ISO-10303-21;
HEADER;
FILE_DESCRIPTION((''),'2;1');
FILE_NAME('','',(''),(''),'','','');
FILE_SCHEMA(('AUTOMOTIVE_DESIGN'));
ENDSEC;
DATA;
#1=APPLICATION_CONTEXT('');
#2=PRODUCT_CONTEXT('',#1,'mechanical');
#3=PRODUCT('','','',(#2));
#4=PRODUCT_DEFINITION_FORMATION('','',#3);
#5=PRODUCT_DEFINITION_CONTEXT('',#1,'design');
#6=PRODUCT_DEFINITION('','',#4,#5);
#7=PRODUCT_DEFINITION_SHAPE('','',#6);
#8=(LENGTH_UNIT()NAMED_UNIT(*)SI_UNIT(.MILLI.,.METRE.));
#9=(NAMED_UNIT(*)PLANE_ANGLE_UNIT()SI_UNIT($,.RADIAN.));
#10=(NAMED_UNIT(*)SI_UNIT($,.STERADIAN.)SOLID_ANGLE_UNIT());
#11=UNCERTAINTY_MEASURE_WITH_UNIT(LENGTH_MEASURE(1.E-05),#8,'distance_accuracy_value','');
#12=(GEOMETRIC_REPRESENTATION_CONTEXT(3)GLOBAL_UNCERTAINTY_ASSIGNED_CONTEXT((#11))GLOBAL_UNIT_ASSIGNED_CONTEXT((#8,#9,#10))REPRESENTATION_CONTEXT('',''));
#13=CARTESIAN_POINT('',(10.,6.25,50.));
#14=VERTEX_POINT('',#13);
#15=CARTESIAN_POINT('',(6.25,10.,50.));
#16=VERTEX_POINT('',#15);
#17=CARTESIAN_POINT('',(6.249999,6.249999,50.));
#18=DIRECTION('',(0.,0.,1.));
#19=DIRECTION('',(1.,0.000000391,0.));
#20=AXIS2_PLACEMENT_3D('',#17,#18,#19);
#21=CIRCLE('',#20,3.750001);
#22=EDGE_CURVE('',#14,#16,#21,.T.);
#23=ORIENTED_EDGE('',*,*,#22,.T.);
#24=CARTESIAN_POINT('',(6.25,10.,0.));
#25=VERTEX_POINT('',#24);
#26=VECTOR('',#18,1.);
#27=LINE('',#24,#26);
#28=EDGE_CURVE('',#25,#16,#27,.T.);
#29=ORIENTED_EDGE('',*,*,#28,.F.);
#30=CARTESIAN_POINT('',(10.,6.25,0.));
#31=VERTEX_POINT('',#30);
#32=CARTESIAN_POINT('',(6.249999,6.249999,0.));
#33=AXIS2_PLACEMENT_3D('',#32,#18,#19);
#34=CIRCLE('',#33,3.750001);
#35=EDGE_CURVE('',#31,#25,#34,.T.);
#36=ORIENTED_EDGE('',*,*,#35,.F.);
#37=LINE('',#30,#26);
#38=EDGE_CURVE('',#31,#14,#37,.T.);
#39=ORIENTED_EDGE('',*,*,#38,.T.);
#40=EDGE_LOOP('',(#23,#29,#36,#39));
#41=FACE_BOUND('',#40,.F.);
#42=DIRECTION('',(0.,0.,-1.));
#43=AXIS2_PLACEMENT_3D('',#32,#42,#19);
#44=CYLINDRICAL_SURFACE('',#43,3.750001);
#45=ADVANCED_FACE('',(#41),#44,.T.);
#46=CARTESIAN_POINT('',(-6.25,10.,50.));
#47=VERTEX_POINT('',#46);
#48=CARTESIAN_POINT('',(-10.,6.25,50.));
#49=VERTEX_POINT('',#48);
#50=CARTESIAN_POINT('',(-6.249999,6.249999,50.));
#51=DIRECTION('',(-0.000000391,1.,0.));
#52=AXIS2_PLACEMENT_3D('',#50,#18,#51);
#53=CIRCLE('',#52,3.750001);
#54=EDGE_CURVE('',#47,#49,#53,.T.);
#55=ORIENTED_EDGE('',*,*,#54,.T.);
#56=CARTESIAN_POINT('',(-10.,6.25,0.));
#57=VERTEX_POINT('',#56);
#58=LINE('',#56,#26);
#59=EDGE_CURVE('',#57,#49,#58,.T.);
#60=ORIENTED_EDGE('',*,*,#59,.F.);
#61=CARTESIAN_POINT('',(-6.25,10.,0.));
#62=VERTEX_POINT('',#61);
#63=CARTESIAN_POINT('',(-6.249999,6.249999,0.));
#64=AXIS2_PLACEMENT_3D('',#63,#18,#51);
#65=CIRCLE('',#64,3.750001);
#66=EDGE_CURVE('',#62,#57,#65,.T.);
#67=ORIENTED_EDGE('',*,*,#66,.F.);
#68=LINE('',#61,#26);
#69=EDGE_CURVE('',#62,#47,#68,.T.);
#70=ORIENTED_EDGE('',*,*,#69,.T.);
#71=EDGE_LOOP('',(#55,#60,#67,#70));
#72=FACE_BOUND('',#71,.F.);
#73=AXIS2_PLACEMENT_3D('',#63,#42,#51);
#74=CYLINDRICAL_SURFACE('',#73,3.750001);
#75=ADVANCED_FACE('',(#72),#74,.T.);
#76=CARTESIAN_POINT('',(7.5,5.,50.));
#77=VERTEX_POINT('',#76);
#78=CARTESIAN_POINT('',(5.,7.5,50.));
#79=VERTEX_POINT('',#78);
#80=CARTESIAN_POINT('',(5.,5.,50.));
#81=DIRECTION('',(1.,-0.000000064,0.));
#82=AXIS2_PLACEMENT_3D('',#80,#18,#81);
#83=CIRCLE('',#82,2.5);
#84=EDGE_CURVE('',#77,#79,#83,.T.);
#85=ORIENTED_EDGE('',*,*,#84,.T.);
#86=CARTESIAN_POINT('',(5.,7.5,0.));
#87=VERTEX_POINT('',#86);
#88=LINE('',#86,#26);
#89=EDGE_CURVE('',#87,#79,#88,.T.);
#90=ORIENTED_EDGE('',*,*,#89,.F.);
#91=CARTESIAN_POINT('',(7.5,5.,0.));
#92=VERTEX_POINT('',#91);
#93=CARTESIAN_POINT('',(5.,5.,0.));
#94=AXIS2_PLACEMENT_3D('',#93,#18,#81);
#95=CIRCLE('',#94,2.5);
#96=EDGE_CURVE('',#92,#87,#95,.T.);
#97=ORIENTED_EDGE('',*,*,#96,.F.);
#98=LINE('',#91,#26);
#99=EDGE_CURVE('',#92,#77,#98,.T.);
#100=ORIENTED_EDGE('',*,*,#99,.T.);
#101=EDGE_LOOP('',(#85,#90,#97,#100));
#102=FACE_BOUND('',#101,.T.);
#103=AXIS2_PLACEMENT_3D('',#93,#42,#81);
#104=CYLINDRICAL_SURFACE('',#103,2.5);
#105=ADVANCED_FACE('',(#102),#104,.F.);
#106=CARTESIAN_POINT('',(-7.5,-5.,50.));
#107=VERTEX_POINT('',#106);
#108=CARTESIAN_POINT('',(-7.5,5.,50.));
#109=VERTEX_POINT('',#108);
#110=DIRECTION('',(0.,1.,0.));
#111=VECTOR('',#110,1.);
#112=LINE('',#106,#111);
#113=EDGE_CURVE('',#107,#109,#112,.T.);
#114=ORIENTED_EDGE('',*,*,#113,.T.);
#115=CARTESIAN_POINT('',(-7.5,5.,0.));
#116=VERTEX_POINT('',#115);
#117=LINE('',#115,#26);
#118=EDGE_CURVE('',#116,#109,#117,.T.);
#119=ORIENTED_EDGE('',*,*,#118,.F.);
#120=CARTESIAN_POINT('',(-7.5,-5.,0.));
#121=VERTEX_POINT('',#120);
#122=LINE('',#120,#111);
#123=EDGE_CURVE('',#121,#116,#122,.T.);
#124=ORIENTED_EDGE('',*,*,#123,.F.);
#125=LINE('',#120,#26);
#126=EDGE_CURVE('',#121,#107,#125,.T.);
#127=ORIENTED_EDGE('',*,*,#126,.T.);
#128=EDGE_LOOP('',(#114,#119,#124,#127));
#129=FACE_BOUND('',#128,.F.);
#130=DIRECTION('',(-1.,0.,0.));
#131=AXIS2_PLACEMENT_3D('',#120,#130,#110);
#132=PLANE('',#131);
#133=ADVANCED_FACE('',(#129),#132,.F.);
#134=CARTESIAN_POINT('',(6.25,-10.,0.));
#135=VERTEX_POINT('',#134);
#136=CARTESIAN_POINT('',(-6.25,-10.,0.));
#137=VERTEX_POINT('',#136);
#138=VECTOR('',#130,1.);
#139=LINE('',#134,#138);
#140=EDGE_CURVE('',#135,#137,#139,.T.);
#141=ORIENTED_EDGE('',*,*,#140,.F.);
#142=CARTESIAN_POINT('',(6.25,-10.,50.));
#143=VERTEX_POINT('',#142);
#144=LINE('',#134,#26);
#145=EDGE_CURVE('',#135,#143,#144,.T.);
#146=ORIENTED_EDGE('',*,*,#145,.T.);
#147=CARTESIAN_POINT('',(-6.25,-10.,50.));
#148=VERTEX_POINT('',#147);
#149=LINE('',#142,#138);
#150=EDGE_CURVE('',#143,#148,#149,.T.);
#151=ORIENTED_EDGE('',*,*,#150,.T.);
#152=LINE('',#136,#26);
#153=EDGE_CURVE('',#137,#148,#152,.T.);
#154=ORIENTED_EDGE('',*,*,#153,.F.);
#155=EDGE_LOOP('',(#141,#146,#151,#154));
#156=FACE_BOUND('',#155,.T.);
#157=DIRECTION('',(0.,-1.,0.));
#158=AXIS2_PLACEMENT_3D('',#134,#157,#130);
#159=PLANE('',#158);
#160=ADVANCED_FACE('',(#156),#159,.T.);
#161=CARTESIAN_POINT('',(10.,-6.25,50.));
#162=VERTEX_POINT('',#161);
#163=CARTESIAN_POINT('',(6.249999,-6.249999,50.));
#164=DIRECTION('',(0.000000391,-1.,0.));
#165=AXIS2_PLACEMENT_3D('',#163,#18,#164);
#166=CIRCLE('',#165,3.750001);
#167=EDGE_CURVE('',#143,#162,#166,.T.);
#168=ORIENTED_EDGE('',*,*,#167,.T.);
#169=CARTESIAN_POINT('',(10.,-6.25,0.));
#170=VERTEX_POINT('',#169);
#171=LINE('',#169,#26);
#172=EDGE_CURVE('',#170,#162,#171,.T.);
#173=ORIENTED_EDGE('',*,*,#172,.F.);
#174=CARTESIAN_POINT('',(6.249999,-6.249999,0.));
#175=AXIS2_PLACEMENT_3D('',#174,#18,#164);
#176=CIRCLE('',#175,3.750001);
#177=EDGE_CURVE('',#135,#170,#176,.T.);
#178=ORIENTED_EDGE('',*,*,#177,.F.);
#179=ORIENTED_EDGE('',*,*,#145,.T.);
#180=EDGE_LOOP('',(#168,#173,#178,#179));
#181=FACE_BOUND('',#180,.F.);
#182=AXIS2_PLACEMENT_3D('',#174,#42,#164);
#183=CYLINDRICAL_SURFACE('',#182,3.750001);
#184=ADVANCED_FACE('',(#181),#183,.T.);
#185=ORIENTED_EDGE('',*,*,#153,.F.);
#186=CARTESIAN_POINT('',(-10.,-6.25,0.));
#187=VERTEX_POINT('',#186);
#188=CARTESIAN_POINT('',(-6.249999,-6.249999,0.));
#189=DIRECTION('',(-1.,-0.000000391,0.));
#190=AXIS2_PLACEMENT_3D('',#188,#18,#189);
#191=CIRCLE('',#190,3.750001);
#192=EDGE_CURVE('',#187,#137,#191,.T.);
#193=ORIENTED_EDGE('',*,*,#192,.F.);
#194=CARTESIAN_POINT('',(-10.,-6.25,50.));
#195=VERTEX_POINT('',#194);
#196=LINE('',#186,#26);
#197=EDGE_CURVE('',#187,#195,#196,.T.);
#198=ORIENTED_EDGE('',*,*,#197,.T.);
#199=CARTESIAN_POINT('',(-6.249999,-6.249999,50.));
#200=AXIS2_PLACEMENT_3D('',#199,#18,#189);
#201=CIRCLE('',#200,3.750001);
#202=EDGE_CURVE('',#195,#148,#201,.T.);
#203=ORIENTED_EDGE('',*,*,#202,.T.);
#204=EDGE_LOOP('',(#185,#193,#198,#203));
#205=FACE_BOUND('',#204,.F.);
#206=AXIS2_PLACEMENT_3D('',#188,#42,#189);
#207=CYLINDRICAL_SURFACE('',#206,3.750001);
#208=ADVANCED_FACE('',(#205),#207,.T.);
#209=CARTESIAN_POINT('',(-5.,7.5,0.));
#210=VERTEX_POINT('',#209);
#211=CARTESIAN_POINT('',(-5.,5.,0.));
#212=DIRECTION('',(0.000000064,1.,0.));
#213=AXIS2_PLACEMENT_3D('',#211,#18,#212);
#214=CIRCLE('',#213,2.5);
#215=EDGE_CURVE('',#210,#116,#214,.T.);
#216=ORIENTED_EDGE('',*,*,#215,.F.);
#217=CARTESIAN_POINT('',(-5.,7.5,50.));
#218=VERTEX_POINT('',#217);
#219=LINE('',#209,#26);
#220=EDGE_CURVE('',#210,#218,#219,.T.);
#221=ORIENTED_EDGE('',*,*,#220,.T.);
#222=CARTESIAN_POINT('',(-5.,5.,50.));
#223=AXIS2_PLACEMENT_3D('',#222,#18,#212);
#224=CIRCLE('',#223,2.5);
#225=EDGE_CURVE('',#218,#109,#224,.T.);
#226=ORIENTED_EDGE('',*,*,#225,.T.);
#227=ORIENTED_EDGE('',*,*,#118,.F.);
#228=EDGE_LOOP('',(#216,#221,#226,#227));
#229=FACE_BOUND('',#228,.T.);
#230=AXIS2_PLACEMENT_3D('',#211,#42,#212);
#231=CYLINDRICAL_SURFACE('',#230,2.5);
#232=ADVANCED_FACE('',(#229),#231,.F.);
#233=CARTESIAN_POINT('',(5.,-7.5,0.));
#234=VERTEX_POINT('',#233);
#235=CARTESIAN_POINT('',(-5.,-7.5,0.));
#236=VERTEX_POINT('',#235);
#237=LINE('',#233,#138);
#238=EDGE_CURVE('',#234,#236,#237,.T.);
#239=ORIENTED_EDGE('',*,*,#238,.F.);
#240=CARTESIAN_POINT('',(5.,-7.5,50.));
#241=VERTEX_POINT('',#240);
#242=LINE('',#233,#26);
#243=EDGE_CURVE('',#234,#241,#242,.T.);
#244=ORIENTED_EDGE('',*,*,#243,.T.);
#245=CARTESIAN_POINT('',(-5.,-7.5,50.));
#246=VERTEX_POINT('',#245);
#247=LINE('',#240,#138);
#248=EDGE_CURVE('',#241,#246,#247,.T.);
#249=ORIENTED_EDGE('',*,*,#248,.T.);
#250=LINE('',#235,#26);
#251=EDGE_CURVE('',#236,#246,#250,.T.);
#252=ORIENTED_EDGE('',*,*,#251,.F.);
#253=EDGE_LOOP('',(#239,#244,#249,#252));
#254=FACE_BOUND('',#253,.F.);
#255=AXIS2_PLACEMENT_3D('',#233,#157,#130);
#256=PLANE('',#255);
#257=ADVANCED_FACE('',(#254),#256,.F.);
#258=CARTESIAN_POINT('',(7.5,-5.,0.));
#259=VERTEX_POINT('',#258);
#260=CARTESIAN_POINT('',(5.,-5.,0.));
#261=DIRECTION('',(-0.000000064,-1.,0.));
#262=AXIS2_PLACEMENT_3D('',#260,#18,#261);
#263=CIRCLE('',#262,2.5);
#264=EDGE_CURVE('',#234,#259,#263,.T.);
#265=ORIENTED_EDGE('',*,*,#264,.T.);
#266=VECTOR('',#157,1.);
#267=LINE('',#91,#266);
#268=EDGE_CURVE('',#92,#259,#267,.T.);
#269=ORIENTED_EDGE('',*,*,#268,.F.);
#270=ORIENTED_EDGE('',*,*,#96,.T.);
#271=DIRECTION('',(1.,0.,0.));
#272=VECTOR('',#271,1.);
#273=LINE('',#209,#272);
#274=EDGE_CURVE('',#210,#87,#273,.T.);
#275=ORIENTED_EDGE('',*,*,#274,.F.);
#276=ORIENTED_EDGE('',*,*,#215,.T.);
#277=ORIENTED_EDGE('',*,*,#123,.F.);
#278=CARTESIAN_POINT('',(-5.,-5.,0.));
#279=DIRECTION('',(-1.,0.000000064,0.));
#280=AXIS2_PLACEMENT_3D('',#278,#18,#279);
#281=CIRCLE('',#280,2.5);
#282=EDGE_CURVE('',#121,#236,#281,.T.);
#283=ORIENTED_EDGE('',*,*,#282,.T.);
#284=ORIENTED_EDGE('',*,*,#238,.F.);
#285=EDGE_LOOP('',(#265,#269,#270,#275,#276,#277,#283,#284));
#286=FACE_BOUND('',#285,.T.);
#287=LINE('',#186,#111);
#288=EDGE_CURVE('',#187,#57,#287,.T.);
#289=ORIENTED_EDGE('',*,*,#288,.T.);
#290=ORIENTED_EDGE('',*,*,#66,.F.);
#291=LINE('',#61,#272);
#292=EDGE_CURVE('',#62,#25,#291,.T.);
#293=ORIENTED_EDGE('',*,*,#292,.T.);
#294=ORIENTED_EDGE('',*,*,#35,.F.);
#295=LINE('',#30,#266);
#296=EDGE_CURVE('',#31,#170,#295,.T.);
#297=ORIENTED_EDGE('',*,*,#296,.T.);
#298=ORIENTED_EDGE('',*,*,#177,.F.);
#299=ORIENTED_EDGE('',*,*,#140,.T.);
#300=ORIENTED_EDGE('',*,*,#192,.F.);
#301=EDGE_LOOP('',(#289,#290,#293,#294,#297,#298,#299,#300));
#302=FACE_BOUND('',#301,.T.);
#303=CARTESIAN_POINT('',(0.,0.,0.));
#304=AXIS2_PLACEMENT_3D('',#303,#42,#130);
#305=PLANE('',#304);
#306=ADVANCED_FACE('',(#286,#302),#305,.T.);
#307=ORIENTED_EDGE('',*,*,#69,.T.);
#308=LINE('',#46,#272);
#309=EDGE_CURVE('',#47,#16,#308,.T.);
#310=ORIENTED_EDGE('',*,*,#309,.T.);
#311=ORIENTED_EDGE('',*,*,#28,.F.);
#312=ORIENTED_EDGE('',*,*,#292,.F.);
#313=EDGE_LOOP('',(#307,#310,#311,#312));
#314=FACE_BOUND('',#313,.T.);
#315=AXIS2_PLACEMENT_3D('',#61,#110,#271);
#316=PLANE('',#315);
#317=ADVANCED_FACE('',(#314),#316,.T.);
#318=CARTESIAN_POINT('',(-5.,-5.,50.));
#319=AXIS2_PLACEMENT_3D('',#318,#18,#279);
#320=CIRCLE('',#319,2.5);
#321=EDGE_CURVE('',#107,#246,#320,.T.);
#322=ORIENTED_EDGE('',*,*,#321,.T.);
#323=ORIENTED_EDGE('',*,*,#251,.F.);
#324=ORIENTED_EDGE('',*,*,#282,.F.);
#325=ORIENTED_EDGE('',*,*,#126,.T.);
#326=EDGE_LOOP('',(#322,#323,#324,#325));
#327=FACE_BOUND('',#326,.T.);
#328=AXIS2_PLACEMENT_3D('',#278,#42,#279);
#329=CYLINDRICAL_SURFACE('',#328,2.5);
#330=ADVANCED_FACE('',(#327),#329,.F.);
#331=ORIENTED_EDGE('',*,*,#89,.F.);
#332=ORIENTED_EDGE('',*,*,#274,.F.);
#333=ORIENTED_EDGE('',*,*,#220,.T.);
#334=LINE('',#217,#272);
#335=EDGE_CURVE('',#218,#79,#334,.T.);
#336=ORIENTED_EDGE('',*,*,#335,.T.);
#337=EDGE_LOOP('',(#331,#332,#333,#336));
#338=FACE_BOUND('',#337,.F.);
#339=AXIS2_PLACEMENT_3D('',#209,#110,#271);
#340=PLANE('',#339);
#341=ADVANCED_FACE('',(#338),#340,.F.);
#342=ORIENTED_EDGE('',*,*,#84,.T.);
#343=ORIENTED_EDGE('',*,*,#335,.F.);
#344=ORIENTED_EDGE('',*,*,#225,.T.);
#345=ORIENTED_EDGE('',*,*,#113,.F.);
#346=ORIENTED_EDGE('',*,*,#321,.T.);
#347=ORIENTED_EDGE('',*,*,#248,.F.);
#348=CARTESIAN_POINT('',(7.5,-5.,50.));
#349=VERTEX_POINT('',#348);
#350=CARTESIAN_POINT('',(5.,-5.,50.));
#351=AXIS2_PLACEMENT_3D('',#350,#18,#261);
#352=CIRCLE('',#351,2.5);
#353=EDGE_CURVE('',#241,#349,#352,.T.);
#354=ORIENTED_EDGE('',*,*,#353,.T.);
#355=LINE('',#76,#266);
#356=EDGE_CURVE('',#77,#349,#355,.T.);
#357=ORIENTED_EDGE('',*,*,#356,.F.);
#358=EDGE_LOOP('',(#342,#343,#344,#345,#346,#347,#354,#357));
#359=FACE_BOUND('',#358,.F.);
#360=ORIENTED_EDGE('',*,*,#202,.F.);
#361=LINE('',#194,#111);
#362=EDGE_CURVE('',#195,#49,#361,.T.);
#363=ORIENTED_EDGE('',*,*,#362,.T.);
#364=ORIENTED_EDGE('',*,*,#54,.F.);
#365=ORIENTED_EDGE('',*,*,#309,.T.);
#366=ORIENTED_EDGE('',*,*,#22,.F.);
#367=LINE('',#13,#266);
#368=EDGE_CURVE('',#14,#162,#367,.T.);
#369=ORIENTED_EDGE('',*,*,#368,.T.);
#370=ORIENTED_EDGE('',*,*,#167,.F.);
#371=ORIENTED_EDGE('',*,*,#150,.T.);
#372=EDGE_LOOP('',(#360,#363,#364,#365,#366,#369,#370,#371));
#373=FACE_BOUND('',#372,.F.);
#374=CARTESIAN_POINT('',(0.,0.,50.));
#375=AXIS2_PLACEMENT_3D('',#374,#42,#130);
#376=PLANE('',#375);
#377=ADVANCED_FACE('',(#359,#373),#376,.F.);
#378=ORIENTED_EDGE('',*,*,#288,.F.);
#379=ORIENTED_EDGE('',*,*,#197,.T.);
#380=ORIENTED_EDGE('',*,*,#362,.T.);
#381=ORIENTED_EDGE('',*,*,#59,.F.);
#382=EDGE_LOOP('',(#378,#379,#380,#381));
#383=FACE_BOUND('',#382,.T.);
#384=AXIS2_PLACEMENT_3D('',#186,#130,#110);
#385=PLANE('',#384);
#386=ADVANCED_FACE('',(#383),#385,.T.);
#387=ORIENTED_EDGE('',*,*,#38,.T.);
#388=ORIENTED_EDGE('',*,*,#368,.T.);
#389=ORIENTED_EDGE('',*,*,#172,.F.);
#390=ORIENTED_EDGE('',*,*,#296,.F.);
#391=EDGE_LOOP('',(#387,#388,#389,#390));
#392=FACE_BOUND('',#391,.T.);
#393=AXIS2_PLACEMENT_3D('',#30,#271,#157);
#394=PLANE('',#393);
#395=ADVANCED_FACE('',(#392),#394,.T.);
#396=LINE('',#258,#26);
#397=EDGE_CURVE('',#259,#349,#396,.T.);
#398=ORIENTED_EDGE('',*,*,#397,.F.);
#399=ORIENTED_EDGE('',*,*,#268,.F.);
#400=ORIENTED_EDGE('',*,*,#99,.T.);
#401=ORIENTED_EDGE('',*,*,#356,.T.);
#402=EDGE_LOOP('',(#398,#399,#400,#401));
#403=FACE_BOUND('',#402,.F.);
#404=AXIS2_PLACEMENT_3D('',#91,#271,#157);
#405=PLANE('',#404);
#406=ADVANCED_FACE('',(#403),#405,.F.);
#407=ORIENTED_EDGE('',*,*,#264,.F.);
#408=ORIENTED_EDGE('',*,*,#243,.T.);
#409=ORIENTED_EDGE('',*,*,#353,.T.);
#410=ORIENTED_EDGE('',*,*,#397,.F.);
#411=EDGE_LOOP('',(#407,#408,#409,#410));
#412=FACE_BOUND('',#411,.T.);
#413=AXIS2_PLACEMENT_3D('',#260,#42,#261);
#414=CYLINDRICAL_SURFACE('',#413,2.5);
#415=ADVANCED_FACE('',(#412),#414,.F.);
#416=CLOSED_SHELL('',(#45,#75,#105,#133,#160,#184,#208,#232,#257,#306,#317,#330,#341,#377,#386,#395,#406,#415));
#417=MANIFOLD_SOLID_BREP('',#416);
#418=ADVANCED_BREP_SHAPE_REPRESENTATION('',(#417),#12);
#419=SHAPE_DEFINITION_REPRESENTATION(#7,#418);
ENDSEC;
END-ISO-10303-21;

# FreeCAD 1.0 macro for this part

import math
import FreeCAD as App
import Part
import Sketcher
from FreeCAD import Vector
Q = App.Units.Quantity

doc = App.newDocument("Part")
params = doc.addObject("Spreadsheet::Sheet", "Params")
for row, (alias, value) in enumerate([
    ("sketch1_radius", "2.5 mm"),
    ("sketch1_width", "10 mm"),
    ("sketch1_radius2", "3.750001 mm"),
    ("sketch1_width2", "12.5 mm"),
    ("pad1_length", "50 mm"),
], start=1):
    params.set(f"A{row}", alias)
    params.set(f"B{row}", "=" + value)
    params.setAlias(f"B{row}", alias)

body = doc.addObject("PartDesign::Body", "Body")

# Sketch on XY plane
sketch1 = body.newObject("Sketcher::SketchObject", "Sketch")
sketch1.AttachmentSupport = (doc.getObject("XY_Plane"), [""])
sketch1.MapMode = "FlatFace"
sketch1.addGeometry(Part.LineSegment(Vector(6.2, 10, 0), Vector(-6.2, 10, 0)), False)
sketch1.addGeometry(Part.ArcOfCircle(Part.Circle(Vector(-6.2, 6.2, 0), Vector(0, 0, 1), 3.8), math.radians(90), math.radians(180)), False)
sketch1.addGeometry(Part.LineSegment(Vector(-10, 6.2, 0), Vector(-10, -6.2, 0)), False)
sketch1.addGeometry(Part.ArcOfCircle(Part.Circle(Vector(-6.2, -6.2, 0), Vector(0, 0, 1), 3.8), math.radians(-180), math.radians(-90)), False)
sketch1.addGeometry(Part.LineSegment(Vector(-6.2, -10, 0), Vector(6.2, -10, 0)), False)
sketch1.addGeometry(Part.ArcOfCircle(Part.Circle(Vector(6.2, -6.2, 0), Vector(0, 0, 1), 3.8), math.radians(-90), math.radians(0)), False)
sketch1.addGeometry(Part.LineSegment(Vector(10, -6.2, 0), Vector(10, 6.2, 0)), False)
sketch1.addGeometry(Part.ArcOfCircle(Part.Circle(Vector(6.2, 6.2, 0), Vector(0, 0, 1), 3.8), math.radians(0), math.radians(90)), False)
sketch1.addGeometry(Part.LineSegment(Vector(-5, 7.5, 0), Vector(5, 7.5, 0)), False)
sketch1.addGeometry(Part.ArcOfCircle(Part.Circle(Vector(5, 5, 0), Vector(0, 0, 1), 2.5), math.radians(0), math.radians(90)), False)
sketch1.addGeometry(Part.LineSegment(Vector(7.5, 5, 0), Vector(7.5, -5, 0)), False)
sketch1.addGeometry(Part.ArcOfCircle(Part.Circle(Vector(5, -5, 0), Vector(0, 0, 1), 2.5), math.radians(-90), math.radians(0)), False)
sketch1.addGeometry(Part.LineSegment(Vector(5, -7.5, 0), Vector(-5, -7.5, 0)), False)
sketch1.addGeometry(Part.ArcOfCircle(Part.Circle(Vector(-5, -5, 0), Vector(0, 0, 1), 2.5), math.radians(180), math.radians(270)), False)
sketch1.addGeometry(Part.LineSegment(Vector(-7.5, -5, 0), Vector(-7.5, 5, 0)), False)
sketch1.addGeometry(Part.ArcOfCircle(Part.Circle(Vector(-5, 5, 0), Vector(0, 0, 1), 2.5), math.radians(90), math.radians(180)), False)
sketch1.addConstraint(Sketcher.Constraint("Tangent", 0, 2, 1, 1))
sketch1.addConstraint(Sketcher.Constraint("Tangent", 1, 2, 2, 1))
sketch1.addConstraint(Sketcher.Constraint("Tangent", 2, 2, 3, 1))
sketch1.addConstraint(Sketcher.Constraint("Tangent", 3, 2, 4, 1))
sketch1.addConstraint(Sketcher.Constraint("Tangent", 4, 2, 5, 1))
sketch1.addConstraint(Sketcher.Constraint("Tangent", 5, 2, 6, 1))
sketch1.addConstraint(Sketcher.Constraint("Tangent", 6, 2, 7, 1))
sketch1.addConstraint(Sketcher.Constraint("Tangent", 7, 2, 0, 1))
sketch1.addConstraint(Sketcher.Constraint("Tangent", 8, 2, 9, 2))
sketch1.addConstraint(Sketcher.Constraint("Tangent", 9, 1, 10, 1))
sketch1.addConstraint(Sketcher.Constraint("Tangent", 10, 2, 11, 2))
sketch1.addConstraint(Sketcher.Constraint("Tangent", 11, 1, 12, 1))
sketch1.addConstraint(Sketcher.Constraint("Tangent", 12, 2, 13, 2))
sketch1.addConstraint(Sketcher.Constraint("Tangent", 13, 1, 14, 1))
sketch1.addConstraint(Sketcher.Constraint("Tangent", 14, 2, 15, 2))
sketch1.addConstraint(Sketcher.Constraint("Tangent", 15, 1, 8, 1))
sketch1.addConstraint(Sketcher.Constraint("Horizontal", 0))
sketch1.addConstraint(Sketcher.Constraint("Vertical", 2))
sketch1.addConstraint(Sketcher.Constraint("Horizontal", 4))
sketch1.addConstraint(Sketcher.Constraint("Vertical", 6))
sketch1.addConstraint(Sketcher.Constraint("Horizontal", 8))
sketch1.addConstraint(Sketcher.Constraint("Vertical", 10))
sketch1.addConstraint(Sketcher.Constraint("Horizontal", 12))
sketch1.addConstraint(Sketcher.Constraint("Vertical", 14))
sketch1.addConstraint(Sketcher.Constraint("Equal", 1, 3))
sketch1.addConstraint(Sketcher.Constraint("Equal", 3, 5))
sketch1.addConstraint(Sketcher.Constraint("Equal", 5, 7))
sketch1.addConstraint(Sketcher.Constraint("Equal", 9, 11))
sketch1.addConstraint(Sketcher.Constraint("Equal", 11, 13))
sketch1.addConstraint(Sketcher.Constraint("Equal", 13, 15))
sketch1.addConstraint(Sketcher.Constraint("Symmetric", 1, 3, 5, 3, -1, 1))
sketch1.addConstraint(Sketcher.Constraint("Symmetric", 9, 3, 13, 3, -1, 1))
sketch1.addConstraint(Sketcher.Constraint("Equal", 4, 2))
sketch1.addConstraint(Sketcher.Constraint("Equal", 12, 10))
sketch1.addConstraint(Sketcher.Constraint("Radius", 9, Q("2.5 mm")))
sketch1.addConstraint(Sketcher.Constraint("DistanceX", 8, 1, 8, 2, Q("10 mm")))
sketch1.addConstraint(Sketcher.Constraint("Radius", 1, Q("3.750001 mm")))
sketch1.addConstraint(Sketcher.Constraint("DistanceX", 0, 2, 0, 1, Q("12.5 mm")))
sketch1.setExpression("Constraints[34]", "Params.sketch1_radius")
sketch1.setExpression("Constraints[35]", "Params.sketch1_width")
sketch1.setExpression("Constraints[36]", "Params.sketch1_radius2")
sketch1.setExpression("Constraints[37]", "Params.sketch1_width2")
pad1 = body.newObject("PartDesign::Pad", "Pad")
pad1.Profile = sketch1
pad1.setExpression("Length", "Params.pad1_length")

doc.recompute()
